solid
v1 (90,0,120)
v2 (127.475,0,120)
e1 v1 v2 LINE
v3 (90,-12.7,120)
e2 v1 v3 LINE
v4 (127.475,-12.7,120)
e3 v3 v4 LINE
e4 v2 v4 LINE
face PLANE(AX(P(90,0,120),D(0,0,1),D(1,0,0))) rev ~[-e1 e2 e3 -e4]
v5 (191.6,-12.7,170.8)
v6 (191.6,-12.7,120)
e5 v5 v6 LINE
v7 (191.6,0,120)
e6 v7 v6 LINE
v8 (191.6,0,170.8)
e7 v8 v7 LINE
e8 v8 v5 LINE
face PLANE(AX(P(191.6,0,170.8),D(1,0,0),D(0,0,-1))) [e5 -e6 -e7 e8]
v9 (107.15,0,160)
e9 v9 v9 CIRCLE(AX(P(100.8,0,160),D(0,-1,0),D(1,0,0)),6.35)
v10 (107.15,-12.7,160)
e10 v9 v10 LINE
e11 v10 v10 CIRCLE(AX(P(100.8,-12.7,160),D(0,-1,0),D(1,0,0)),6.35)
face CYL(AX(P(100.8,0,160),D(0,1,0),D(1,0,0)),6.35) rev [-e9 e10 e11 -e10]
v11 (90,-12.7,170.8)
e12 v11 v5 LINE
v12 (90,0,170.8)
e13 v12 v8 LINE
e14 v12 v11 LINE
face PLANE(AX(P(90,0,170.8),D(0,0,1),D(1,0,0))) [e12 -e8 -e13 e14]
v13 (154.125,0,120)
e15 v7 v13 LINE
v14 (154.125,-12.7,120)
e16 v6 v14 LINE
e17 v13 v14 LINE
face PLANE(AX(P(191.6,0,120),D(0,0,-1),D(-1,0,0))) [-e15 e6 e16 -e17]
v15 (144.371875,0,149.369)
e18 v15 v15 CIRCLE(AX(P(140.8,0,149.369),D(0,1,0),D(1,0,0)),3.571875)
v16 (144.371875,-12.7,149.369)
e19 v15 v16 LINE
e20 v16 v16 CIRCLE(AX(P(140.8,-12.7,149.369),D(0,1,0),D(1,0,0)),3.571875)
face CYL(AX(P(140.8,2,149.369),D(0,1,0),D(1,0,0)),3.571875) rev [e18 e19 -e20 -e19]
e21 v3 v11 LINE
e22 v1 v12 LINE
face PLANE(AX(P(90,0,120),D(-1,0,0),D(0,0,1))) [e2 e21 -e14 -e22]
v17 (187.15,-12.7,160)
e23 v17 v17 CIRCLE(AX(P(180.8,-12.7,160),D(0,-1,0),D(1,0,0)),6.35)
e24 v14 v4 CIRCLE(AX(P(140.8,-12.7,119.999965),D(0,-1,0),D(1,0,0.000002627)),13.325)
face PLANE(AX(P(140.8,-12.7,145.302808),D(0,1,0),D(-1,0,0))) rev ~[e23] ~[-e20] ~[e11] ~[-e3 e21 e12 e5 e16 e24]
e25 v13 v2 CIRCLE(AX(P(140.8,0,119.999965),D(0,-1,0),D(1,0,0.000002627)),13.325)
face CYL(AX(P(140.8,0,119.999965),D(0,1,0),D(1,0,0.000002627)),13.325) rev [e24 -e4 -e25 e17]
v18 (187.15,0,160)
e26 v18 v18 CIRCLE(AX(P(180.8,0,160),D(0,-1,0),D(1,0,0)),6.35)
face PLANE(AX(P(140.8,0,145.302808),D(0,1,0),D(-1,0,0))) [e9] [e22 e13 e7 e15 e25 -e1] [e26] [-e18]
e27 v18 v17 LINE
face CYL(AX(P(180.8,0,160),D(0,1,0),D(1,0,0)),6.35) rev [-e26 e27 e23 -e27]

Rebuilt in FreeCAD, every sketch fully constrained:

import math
import FreeCAD as App
import Part
import Sketcher
Q = App.Units.Quantity

doc = App.newDocument("Part")
body = doc.addObject("PartDesign::Body", "Body")

sketch1 = doc.addObject("Sketcher::SketchObject", "Sketch")
body.addObject(sketch1)
sketch1.AttachmentSupport = (doc.XZ_Plane, [""])
sketch1.MapMode = "FlatFace"
sketch1.addGeometry(Part.Circle(App.Vector(0, 0, 0), App.Vector(0, 0, 1), 3.6), False)
sketch1.addConstraint(Sketcher.Constraint("Coincident", 0, 3, -1, 1))
sketch1.addConstraint(Sketcher.Constraint("Diameter", 0, Q("0.28125 in")))
pad1 = doc.addObject("PartDesign::Pad", "Pad")
body.addObject(pad1)
pad1.Profile = sketch1
pad1.Length = 30
body2 = doc.addObject("PartDesign::Body", "Body001")
doc.recompute()

body.Placement = App.Placement(App.Vector(41.6, 2, 149.369), App.Rotation(App.Vector(0, 0, 1), 0))
boolean = doc.addObject("PartDesign::Boolean", "Boolean")
body2.addObject(boolean)
boolean.Type = "Fuse"
boolean.addObjects([body])
body3 = doc.addObject("PartDesign::Body", "Body002")

sketch2 = doc.addObject("Sketcher::SketchObject", "Sketch001")
body3.addObject(sketch2)
sketch2.AttachmentSupport = (doc.getObject("XZ_Plane002"), [""])
sketch2.MapMode = "FlatFace"
sketch2.addGeometry(Part.LineSegment(App.Vector(-51, 161, 0), App.Vector(-51, 110, 0)), False)
sketch2.addGeometry(Part.LineSegment(App.Vector(-51, 110, 0), App.Vector(-13, 110, 0)), False)
sketch2.addGeometry(Part.ArcOfCircle(Part.Circle(App.Vector(0, 110, 0), App.Vector(0, 0, 1), 13), math.radians(0), math.radians(180)), False)
sketch2.addGeometry(Part.LineSegment(App.Vector(13, 110, 0), App.Vector(51, 110, 0)), False)
sketch2.addGeometry(Part.LineSegment(App.Vector(51, 110, 0), App.Vector(51, 161, 0)), False)
sketch2.addGeometry(Part.LineSegment(App.Vector(51, 161, 0), App.Vector(-51, 161, 0)), False)
sketch2.addGeometry(Part.Circle(App.Vector(40, 150, 0), App.Vector(0, 0, 1), 6), False)
sketch2.addGeometry(Part.Circle(App.Vector(-40, 150, 0), App.Vector(0, 0, 1), 6), False)
sketch2.addConstraint(Sketcher.Constraint("Coincident", 0, 2, 1, 1))
sketch2.addConstraint(Sketcher.Constraint("Coincident", 1, 2, 2, 2))
sketch2.addConstraint(Sketcher.Constraint("Coincident", 2, 1, 3, 1))
sketch2.addConstraint(Sketcher.Constraint("Coincident", 3, 2, 4, 1))
sketch2.addConstraint(Sketcher.Constraint("Coincident", 4, 2, 5, 1))
sketch2.addConstraint(Sketcher.Constraint("Coincident", 5, 2, 0, 1))
sketch2.addConstraint(Sketcher.Constraint("Vertical", 0))
sketch2.addConstraint(Sketcher.Constraint("Horizontal", 1))
sketch2.addConstraint(Sketcher.Constraint("Horizontal", 3))
sketch2.addConstraint(Sketcher.Constraint("Vertical", 4))
sketch2.addConstraint(Sketcher.Constraint("Horizontal", 5))
sketch2.addConstraint(Sketcher.Constraint("Equal", 6, 7))
sketch2.addConstraint(Sketcher.Constraint("Symmetric", 6, 3, 7, 3, -2))
sketch2.addConstraint(Sketcher.Constraint("Symmetric", 1, 2, 2, 1, -2))
sketch2.addConstraint(Sketcher.Constraint("Equal", 1, 3))
sketch2.addConstraint(Sketcher.Constraint("Diameter", 6, Q("0.5 in")))
sketch2.addConstraint(Sketcher.Constraint("DistanceX", 5, 2, 5, 1, Q("4 in")))
sketch2.addConstraint(Sketcher.Constraint("DistanceY", 0, 2, 0, 1, Q("2 in")))
sketch2.addConstraint(Sketcher.Constraint("Radius", 2, 13.325))
sketch2.addConstraint(Sketcher.Constraint("DistanceX", -1, 1, 6, 3, 40.0))
sketch2.addConstraint(Sketcher.Constraint("DistanceY", -1, 1, 6, 3, 150.0))
sketch2.addConstraint(Sketcher.Constraint("DistanceY", -1, 1, 0, 2, 110.0))
sketch2.addConstraint(Sketcher.Constraint("DistanceY", -1, 1, 2, 3, 109.999965))
pad2 = doc.addObject("PartDesign::Pad", "Pad001")
body3.addObject(pad2)
pad2.Profile = sketch2
pad2.Length = Q("0.5 in")
body4 = doc.addObject("PartDesign::Body", "Body003")
doc.recompute()

body3.Placement = App.Placement(App.Vector(41.6, 0, 10), App.Rotation(App.Vector(0, 0, 1), 0))
boolean2 = doc.addObject("PartDesign::Boolean", "Boolean001")
body4.addObject(boolean2)
boolean2.Type = "Fuse"
boolean2.addObjects([body3])
doc.recompute()

boolean3 = doc.addObject("PartDesign::Boolean", "Boolean002")
body4.addObject(boolean3)
boolean3.Type = "Cut"
boolean3.addObjects([body2])
body5 = doc.addObject("PartDesign::Body", "Body004")
doc.recompute()

body4.Placement = App.Placement(App.Vector(99.2, 0, 0), App.Rotation(App.Vector(0, 0, 1), 0))
boolean4 = doc.addObject("PartDesign::Boolean", "Boolean003")
body5.addObject(boolean4)
boolean4.Type = "Fuse"
boolean4.addObjects([body4])

doc.recompute()
